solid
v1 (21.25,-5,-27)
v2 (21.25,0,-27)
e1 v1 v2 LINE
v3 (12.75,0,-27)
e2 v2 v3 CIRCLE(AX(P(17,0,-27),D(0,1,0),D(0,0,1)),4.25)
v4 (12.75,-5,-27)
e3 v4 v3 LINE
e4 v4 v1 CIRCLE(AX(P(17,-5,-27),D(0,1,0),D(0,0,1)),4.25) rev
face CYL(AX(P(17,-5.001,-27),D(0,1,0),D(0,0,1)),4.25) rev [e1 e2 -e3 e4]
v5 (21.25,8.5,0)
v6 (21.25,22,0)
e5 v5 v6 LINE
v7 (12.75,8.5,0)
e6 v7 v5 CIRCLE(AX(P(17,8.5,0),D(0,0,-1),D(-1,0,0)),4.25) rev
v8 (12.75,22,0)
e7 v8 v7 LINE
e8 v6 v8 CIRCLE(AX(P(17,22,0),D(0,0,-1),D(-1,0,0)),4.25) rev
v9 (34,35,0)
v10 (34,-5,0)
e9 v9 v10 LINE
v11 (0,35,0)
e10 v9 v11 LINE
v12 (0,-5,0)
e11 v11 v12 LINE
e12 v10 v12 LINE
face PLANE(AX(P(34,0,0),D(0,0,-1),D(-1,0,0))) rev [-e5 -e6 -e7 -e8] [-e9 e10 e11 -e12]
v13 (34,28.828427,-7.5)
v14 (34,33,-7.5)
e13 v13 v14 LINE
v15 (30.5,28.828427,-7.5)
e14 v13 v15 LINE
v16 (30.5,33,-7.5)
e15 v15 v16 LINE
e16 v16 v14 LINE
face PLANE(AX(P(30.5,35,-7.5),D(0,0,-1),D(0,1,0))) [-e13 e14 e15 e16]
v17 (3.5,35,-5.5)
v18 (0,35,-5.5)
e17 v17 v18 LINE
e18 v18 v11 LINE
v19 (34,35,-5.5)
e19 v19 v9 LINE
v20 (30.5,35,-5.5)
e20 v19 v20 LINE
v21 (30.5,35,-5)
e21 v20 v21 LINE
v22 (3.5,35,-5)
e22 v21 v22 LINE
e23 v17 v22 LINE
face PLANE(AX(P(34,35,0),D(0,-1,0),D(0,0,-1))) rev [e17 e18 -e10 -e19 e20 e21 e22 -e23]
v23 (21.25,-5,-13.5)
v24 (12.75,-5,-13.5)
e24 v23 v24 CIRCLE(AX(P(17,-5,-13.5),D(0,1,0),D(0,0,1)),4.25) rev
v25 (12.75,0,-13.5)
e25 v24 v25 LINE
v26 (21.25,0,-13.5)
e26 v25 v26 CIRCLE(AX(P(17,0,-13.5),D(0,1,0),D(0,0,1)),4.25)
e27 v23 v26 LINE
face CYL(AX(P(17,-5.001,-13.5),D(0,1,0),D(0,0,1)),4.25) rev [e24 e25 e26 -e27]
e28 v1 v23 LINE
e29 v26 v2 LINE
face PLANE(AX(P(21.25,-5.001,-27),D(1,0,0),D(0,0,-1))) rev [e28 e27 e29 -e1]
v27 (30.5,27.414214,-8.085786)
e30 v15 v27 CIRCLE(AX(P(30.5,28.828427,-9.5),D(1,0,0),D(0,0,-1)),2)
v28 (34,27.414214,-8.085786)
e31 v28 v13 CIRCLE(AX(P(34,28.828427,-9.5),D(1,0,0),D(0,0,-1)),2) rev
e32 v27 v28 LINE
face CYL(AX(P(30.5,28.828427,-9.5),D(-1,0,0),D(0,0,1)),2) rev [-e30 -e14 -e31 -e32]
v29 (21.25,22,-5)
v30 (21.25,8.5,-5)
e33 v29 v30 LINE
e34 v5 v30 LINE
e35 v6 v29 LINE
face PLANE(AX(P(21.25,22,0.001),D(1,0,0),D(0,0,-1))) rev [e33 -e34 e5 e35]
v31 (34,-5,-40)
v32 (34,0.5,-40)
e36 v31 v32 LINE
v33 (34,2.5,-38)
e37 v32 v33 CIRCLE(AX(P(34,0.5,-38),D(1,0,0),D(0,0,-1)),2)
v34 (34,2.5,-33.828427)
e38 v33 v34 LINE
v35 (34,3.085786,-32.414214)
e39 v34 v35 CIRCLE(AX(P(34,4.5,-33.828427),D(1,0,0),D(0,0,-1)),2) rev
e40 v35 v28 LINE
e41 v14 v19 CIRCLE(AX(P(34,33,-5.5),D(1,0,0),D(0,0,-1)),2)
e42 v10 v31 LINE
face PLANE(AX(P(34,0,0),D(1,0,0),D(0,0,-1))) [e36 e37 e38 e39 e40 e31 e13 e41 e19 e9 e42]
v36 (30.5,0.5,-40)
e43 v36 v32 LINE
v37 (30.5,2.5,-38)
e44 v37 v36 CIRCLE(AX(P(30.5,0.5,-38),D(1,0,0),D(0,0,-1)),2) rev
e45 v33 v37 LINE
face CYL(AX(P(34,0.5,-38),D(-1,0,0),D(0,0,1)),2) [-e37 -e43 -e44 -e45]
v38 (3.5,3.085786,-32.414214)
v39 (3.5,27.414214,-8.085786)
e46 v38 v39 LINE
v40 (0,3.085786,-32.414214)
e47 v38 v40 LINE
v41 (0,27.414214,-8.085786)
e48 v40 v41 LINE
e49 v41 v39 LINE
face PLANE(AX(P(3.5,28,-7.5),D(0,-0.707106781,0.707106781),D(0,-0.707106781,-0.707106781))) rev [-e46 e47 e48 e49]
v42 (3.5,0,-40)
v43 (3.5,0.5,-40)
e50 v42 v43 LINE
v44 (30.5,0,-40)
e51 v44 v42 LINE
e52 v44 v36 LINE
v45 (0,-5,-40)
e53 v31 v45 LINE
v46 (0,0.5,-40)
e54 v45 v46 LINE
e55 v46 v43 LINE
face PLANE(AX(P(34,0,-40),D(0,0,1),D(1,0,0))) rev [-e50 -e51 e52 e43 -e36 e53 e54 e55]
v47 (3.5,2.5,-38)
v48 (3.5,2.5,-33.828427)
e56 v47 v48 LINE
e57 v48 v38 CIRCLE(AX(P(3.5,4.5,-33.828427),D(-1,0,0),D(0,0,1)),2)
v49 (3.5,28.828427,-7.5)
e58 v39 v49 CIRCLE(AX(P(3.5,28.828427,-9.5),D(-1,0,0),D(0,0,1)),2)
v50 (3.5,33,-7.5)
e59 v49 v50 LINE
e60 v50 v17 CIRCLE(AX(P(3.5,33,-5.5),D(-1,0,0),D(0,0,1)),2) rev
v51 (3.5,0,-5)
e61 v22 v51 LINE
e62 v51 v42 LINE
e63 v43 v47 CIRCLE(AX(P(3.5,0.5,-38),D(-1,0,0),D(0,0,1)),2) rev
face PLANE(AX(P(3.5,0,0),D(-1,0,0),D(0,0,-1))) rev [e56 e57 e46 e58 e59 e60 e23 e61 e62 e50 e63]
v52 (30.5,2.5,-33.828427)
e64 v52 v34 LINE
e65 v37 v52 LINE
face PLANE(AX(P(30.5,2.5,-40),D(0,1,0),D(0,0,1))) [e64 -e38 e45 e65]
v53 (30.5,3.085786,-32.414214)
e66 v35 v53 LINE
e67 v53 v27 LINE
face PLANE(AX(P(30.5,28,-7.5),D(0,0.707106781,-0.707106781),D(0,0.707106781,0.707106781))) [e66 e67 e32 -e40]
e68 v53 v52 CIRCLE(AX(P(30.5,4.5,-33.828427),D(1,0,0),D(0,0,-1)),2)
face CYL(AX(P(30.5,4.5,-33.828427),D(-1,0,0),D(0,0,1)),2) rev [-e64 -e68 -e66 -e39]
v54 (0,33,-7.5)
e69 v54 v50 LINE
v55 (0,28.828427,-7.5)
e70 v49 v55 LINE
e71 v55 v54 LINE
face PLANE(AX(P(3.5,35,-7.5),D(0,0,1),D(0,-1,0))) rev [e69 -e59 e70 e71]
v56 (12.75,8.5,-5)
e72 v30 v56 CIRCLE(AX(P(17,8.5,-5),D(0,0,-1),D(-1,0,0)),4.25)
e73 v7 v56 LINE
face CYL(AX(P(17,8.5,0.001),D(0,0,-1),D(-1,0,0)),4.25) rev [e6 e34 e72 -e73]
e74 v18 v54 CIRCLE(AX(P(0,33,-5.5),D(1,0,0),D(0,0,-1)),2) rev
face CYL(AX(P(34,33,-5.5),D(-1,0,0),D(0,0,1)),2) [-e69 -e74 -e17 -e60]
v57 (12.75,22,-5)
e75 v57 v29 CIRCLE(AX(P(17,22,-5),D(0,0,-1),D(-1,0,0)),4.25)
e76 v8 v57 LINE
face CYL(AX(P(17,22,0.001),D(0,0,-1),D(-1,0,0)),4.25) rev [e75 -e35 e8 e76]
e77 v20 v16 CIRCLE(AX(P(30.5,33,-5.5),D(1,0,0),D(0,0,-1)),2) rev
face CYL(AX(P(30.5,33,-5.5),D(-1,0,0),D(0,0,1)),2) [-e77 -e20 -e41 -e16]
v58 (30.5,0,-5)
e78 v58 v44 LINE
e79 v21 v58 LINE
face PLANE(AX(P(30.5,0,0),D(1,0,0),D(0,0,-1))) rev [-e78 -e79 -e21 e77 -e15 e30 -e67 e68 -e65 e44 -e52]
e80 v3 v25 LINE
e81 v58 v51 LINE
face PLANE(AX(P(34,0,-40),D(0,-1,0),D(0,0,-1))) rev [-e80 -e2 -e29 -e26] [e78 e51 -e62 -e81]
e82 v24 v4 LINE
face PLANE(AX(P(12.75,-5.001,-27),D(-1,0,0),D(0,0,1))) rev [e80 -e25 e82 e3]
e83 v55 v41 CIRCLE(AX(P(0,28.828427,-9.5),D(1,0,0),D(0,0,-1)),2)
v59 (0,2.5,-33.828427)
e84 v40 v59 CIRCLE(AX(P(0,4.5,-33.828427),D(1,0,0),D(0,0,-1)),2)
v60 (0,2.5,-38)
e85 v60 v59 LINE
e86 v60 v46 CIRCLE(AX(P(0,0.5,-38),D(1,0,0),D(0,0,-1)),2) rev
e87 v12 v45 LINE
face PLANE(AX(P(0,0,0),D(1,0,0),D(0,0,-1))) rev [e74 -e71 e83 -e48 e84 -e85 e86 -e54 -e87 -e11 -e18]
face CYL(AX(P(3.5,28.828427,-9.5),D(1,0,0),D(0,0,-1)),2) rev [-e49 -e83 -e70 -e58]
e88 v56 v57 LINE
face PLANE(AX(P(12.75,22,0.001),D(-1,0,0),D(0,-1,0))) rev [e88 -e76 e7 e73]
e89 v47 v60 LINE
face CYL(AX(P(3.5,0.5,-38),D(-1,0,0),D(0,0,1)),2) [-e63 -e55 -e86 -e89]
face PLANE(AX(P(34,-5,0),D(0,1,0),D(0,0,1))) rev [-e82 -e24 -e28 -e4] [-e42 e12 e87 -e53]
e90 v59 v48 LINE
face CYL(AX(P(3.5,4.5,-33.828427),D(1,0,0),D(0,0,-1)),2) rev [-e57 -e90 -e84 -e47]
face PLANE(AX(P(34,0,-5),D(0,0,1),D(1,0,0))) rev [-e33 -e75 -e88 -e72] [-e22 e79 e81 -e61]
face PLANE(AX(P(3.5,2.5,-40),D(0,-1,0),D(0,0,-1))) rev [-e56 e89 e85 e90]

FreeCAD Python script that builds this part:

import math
import FreeCAD as App
import Part
import Sketcher


def edges_at(feature, points):
    """Names of the edges that pass closest to the given points."""
    edges = feature.Shape.Edges
    near = lambda p: min(range(len(edges)), key=lambda i: edges[i].distToShape(Part.Vertex(*p))[0])
    return sorted({f"Edge{near(p) + 1}" for p in points})


def add_polygon(sketch, points):
    """Adds a closed chain of lines whose ends are joined by coincident constraints."""
    first, n = sketch.GeometryCount, len(points)
    for a, b in zip(points, points[1:] + points[:1]):
        sketch.addGeometry(Part.LineSegment(App.Vector(*a, 0), App.Vector(*b, 0)), False)
    for i in range(n):
        sketch.addConstraint(Sketcher.Constraint("Coincident", first + i, 2, first + (i + 1) % n, 1))

doc = App.newDocument("Part")
body = doc.addObject("PartDesign::Body", "Body")

sketch1 = doc.addObject("Sketcher::SketchObject", "Sketch")
body.addObject(sketch1)
sketch1.AttachmentSupport = (doc.YZ_Plane, [""])
sketch1.MapMode = "FlatFace"
add_polygon(sketch1, [(35, 0), (-5, 0), (-5, -40), (0, -40), (0, -5), (35, -5)])
sketch1.addConstraint([
    Sketcher.Constraint("Horizontal", 0),
    Sketcher.Constraint("Vertical", 1),
    Sketcher.Constraint("Horizontal", 2),
    Sketcher.Constraint("Vertical", 3),
    Sketcher.Constraint("Horizontal", 4),
    Sketcher.Constraint("Vertical", 5),
    Sketcher.Constraint("PointOnObject", 0, 2, -1),
    Sketcher.Constraint("PointOnObject", 2, 2, -2),
    Sketcher.Constraint("Equal", 0, 1),
    Sketcher.Constraint("Equal", 4, 3),
    Sketcher.Constraint("DistanceX", 0, 2, 0, 1, 40.0),
    Sketcher.Constraint("DistanceX", 2, 1, 2, 2, 5.0),
])
pad1 = doc.addObject("PartDesign::Pad", "Pad")
body.addObject(pad1)
pad1.Profile = sketch1
pad1.Length = 34

sketch2 = doc.addObject("Sketcher::SketchObject", "Sketch001")
body.addObject(sketch2)
sketch2.AttachmentSupport = (doc.YZ_Plane, [""])
sketch2.MapMode = "FlatFace"
sketch2.AttachmentOffset = App.Placement(App.Vector(0, 0, 34), App.Rotation())
add_polygon(sketch2, [(0, -40), (2.5, -40), (2.5, -33), (28, -7.5), (35, -7.5), (35, -5), (0, -5)])
sketch2.addConstraint([
    Sketcher.Constraint("Horizontal", 0),
    Sketcher.Constraint("Vertical", 1),
    Sketcher.Constraint("Horizontal", 3),
    Sketcher.Constraint("Vertical", 4),
    Sketcher.Constraint("Horizontal", 5),
    Sketcher.Constraint("Vertical", 6),
    Sketcher.Constraint("PointOnObject", 5, 2, -2),
    Sketcher.Constraint("Equal", 3, 1),
    Sketcher.Constraint("Equal", 0, 4),
    Sketcher.Constraint("Equal", 5, 6),
    Sketcher.Constraint("DistanceX", 3, 1, 3, 2, 7.0),
    Sketcher.Constraint("DistanceX", 5, 2, 5, 1, 35.0),
    Sketcher.Constraint("DistanceX", 0, 1, 0, 2, 2.5),
    Sketcher.Constraint("DistanceY", 0, 2, -1, 1, 40.0),
])
pad2 = doc.addObject("PartDesign::Pad", "Pad001")
body.addObject(pad2)
pad2.Profile = sketch2
pad2.Length = 3.5
pad2.Reversed = True
doc.recompute()

datumplane = doc.addObject("PartDesign::Plane", "DatumPlane")
body.addObject(datumplane)
datumplane.AttachmentSupport = (doc.YZ_Plane, [""])
datumplane.MapMode = "FlatFace"
datumplane.AttachmentOffset = App.Placement(App.Vector(0, 0, 17), App.Rotation())
mirrored = doc.addObject("PartDesign::Mirrored", "Mirrored")
body.addObject(mirrored)
mirrored.Originals = [pad2]
mirrored.MirrorPlane = (datumplane, [""])
body.Tip = mirrored

sketch3 = doc.addObject("Sketcher::SketchObject", "Sketch002")
body.addObject(sketch3)
sketch3.AttachmentSupport = (doc.XY_Plane, [""])
sketch3.MapMode = "FlatFace"
sketch3.AttachmentOffset = App.Placement(App.Vector(0, 0, -5), App.Rotation())
sketch3.addGeometry([
    Part.LineSegment(App.Vector(12.8, 8.5, 0), App.Vector(12.8, 22, 0)),
    Part.ArcOfCircle(Part.Circle(App.Vector(17, 22, 0), App.Vector(0, 0, 1), 4.2), math.radians(0), math.radians(180)),
    Part.LineSegment(App.Vector(21.2, 22, 0), App.Vector(21.2, 8.5, 0)),
    Part.ArcOfCircle(Part.Circle(App.Vector(17, 8.5, 0), App.Vector(0, 0, 1), 4.2), math.radians(180), math.radians(360)),
], False)
sketch3.addConstraint([
    Sketcher.Constraint("Tangent", 0, 2, 1, 2),
    Sketcher.Constraint("Tangent", 1, 1, 2, 1),
    Sketcher.Constraint("Tangent", 2, 2, 3, 2),
    Sketcher.Constraint("Tangent", 3, 1, 0, 1),
    Sketcher.Constraint("Vertical", 0),
    Sketcher.Constraint("Vertical", 2),
    Sketcher.Constraint("Radius", 1, 4.25),
    Sketcher.Constraint("DistanceY", 0, 1, 0, 2, 13.5),
    Sketcher.Constraint("DistanceX", -1, 1, 1, 3, 17.0),
    Sketcher.Constraint("DistanceY", -1, 1, 1, 3, 22.0),
])
pocket1 = doc.addObject("PartDesign::Pocket", "Pocket")
body.addObject(pocket1)
pocket1.Profile = sketch3
pocket1.Type = "UpToFirst"
pocket1.Reversed = True

sketch4 = doc.addObject("Sketcher::SketchObject", "Sketch003")
body.addObject(sketch4)
sketch4.AttachmentSupport = (doc.XZ_Plane, [""])
sketch4.MapMode = "FlatFace"
sketch4.addGeometry([
    Part.LineSegment(App.Vector(21.2, -13.5, 0), App.Vector(21.2, -27, 0)),
    Part.ArcOfCircle(Part.Circle(App.Vector(17, -27, 0), App.Vector(0, 0, 1), 4.2), math.radians(180), math.radians(360)),
    Part.LineSegment(App.Vector(12.8, -27, 0), App.Vector(12.8, -13.5, 0)),
    Part.ArcOfCircle(Part.Circle(App.Vector(17, -13.5, 0), App.Vector(0, 0, 1), 4.2), math.radians(0), math.radians(180)),
], False)
sketch4.addConstraint([
    Sketcher.Constraint("Tangent", 0, 2, 1, 2),
    Sketcher.Constraint("Tangent", 1, 1, 2, 1),
    Sketcher.Constraint("Tangent", 2, 2, 3, 2),
    Sketcher.Constraint("Tangent", 3, 1, 0, 1),
    Sketcher.Constraint("Vertical", 0),
    Sketcher.Constraint("Vertical", 2),
    Sketcher.Constraint("Radius", 1, 4.25),
    Sketcher.Constraint("DistanceY", 0, 2, 0, 1, 13.5),
    Sketcher.Constraint("DistanceX", -1, 1, 1, 3, 17.0),
    Sketcher.Constraint("DistanceY", 1, 3, -1, 1, 27.0),
])
pocket2 = doc.addObject("PartDesign::Pocket", "Pocket001")
body.addObject(pocket2)
pocket2.Profile = sketch4
pocket2.Type = "UpToFirst"
pocket2.Reversed = True
doc.recompute()

fillet = doc.addObject("PartDesign::Fillet", "Fillet")
body.addObject(fillet)
fillet.Base = (pocket2, edges_at(pocket2, [
    (32.25, 35, -7.5),
    (32.25, 28, -7.5),
    (32.25, 2.5, -33),
    (32.25, 2.5, -40),
    (1.75, 2.5, -40),
    (1.75, 2.5, -33),
    (1.75, 28, -7.5),
    (1.75, 35, -7.5),
]))
fillet.Radius = 2

doc.recompute()
